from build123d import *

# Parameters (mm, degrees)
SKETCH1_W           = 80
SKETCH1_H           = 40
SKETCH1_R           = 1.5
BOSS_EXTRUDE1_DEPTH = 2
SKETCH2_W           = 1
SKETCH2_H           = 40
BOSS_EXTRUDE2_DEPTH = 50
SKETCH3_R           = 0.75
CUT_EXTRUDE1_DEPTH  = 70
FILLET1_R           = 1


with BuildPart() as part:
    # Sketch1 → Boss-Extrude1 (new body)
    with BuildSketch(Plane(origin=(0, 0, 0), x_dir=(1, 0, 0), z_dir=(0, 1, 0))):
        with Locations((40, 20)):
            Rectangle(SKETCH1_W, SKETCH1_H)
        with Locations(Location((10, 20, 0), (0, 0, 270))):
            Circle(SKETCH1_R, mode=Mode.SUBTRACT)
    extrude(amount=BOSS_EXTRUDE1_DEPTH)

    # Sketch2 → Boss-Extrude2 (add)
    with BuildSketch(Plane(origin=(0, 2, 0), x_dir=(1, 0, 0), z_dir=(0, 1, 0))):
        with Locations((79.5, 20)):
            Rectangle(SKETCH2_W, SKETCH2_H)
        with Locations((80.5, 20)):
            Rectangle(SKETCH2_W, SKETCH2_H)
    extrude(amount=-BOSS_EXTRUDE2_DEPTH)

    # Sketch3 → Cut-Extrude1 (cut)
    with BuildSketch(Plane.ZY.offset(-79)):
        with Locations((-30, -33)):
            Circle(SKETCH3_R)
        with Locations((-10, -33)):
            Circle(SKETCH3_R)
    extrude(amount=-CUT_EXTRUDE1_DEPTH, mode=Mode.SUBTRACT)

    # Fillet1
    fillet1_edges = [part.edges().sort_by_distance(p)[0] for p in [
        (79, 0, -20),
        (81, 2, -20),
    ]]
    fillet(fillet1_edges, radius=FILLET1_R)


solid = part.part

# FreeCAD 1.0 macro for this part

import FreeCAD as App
import Part
import Sketcher
Q = App.Units.Quantity


def edges_at(feature, points):
    """Names of the edges that pass closest to the given points."""
    edges = feature.Shape.Edges
    near = lambda p: min(range(len(edges)), key=lambda i: edges[i].distToShape(Part.Vertex(*p))[0])
    return sorted({f"Edge{near(p) + 1}" for p in points})


def add_polygon(sketch, points):
    """Adds a closed chain of lines whose ends are joined by coincident constraints."""
    first, n = sketch.GeometryCount, len(points)
    for a, b in zip(points, points[1:] + points[:1]):
        sketch.addGeometry(Part.LineSegment(App.Vector(*a, 0), App.Vector(*b, 0)), False)
    for i in range(n):
        sketch.addConstraint(Sketcher.Constraint("Coincident", first + i, 2, first + (i + 1) % n, 1))

doc = App.newDocument("Part")
body = doc.addObject("PartDesign::Body", "Body")

sketch1 = doc.addObject("Sketcher::SketchObject", "Sketch")
body.addObject(sketch1)
sketch1.AttachmentSupport = (doc.XZ_Plane, [""])
sketch1.MapMode = "FlatFace"
add_polygon(sketch1, [(0, -40), (0, 0), (80, 0), (80, -40)])
sketch1.addGeometry(Part.Circle(App.Vector(10, -20, 0), App.Vector(0, 0, 1), 1.5), False)
sketch1.addConstraint(Sketcher.Constraint("Vertical", 0))
sketch1.addConstraint(Sketcher.Constraint("Horizontal", 1))
sketch1.addConstraint(Sketcher.Constraint("Vertical", 2))
sketch1.addConstraint(Sketcher.Constraint("Horizontal", 3))
sketch1.addConstraint(Sketcher.Constraint("Coincident", 0, 2, -1, 1))
sketch1.addConstraint(Sketcher.Constraint("Diameter", 4, Q("3 mm")))
sketch1.addConstraint(Sketcher.Constraint("DistanceX", 1, 1, 1, 2, Q("80 mm")))
sketch1.addConstraint(Sketcher.Constraint("DistanceY", 0, 1, 0, 2, Q("40 mm")))
sketch1.addConstraint(Sketcher.Constraint("DistanceX", -1, 1, 4, 3, Q("10 mm")))
sketch1.addConstraint(Sketcher.Constraint("DistanceY", 4, 3, -1, 1, Q("20 mm")))
pad1 = doc.addObject("PartDesign::Pad", "Pad")
body.addObject(pad1)
pad1.Profile = sketch1
pad1.Length = 2
pad1.Reversed = True

sketch2 = doc.addObject("Sketcher::SketchObject", "Sketch001")
body.addObject(sketch2)
sketch2.AttachmentSupport = (doc.XZ_Plane, [""])
sketch2.MapMode = "FlatFace"
sketch2.AttachmentOffset = App.Placement(App.Vector(0, 0, -2), App.Rotation())
add_polygon(sketch2, [(79, -40), (79, 0), (81, 0), (81, -40)])
sketch2.addConstraint(Sketcher.Constraint("Vertical", 0))
sketch2.addConstraint(Sketcher.Constraint("Horizontal", 1))
sketch2.addConstraint(Sketcher.Constraint("Vertical", 2))
sketch2.addConstraint(Sketcher.Constraint("Horizontal", 3))
sketch2.addConstraint(Sketcher.Constraint("PointOnObject", 0, 2, -1))
sketch2.addConstraint(Sketcher.Constraint("DistanceX", 1, 1, 1, 2, Q("2 mm")))
sketch2.addConstraint(Sketcher.Constraint("DistanceY", 0, 1, 0, 2, Q("40 mm")))
sketch2.addConstraint(Sketcher.Constraint("DistanceX", -1, 1, 0, 2, Q("79 mm")))
pad2 = doc.addObject("PartDesign::Pad", "Pad001")
body.addObject(pad2)
pad2.Profile = sketch2
pad2.Length = 50

sketch3 = doc.addObject("Sketcher::SketchObject", "Sketch002")
body.addObject(sketch3)
sketch3.AttachmentSupport = (doc.YZ_Plane, [""])
sketch3.MapMode = "FlatFace"
sketch3.AttachmentOffset = App.Placement(App.Vector(0, 0, 79), App.Rotation())
sketch3.addGeometry(Part.Circle(App.Vector(-33, -30, 0), App.Vector(0, 0, 1), 0.8), False)
sketch3.addGeometry(Part.Circle(App.Vector(-33, -10, 0), App.Vector(0, 0, 1), 0.8), False)
sketch3.addConstraint(Sketcher.Constraint("Equal", 0, 1))
sketch3.addConstraint(Sketcher.Constraint("Vertical", 0, 3, 1, 3))
sketch3.addConstraint(Sketcher.Constraint("Diameter", 0, Q("1.5 mm")))
sketch3.addConstraint(Sketcher.Constraint("DistanceX", 0, 3, -1, 1, Q("33 mm")))
sketch3.addConstraint(Sketcher.Constraint("DistanceY", 0, 3, -1, 1, Q("30 mm")))
sketch3.addConstraint(Sketcher.Constraint("DistanceY", 1, 3, -1, 1, Q("10 mm")))
pocket1 = doc.addObject("PartDesign::Pocket", "Pocket")
body.addObject(pocket1)
pocket1.Profile = sketch3
pocket1.Length = 70
pocket1.Reversed = True
doc.recompute()

fillet = doc.addObject("PartDesign::Fillet", "Fillet")
body.addObject(fillet)
fillet.Base = (pocket1, edges_at(pocket1, [(79, 0, -20), (81, 2, -20)]))
fillet.Radius = 1

doc.recompute()
